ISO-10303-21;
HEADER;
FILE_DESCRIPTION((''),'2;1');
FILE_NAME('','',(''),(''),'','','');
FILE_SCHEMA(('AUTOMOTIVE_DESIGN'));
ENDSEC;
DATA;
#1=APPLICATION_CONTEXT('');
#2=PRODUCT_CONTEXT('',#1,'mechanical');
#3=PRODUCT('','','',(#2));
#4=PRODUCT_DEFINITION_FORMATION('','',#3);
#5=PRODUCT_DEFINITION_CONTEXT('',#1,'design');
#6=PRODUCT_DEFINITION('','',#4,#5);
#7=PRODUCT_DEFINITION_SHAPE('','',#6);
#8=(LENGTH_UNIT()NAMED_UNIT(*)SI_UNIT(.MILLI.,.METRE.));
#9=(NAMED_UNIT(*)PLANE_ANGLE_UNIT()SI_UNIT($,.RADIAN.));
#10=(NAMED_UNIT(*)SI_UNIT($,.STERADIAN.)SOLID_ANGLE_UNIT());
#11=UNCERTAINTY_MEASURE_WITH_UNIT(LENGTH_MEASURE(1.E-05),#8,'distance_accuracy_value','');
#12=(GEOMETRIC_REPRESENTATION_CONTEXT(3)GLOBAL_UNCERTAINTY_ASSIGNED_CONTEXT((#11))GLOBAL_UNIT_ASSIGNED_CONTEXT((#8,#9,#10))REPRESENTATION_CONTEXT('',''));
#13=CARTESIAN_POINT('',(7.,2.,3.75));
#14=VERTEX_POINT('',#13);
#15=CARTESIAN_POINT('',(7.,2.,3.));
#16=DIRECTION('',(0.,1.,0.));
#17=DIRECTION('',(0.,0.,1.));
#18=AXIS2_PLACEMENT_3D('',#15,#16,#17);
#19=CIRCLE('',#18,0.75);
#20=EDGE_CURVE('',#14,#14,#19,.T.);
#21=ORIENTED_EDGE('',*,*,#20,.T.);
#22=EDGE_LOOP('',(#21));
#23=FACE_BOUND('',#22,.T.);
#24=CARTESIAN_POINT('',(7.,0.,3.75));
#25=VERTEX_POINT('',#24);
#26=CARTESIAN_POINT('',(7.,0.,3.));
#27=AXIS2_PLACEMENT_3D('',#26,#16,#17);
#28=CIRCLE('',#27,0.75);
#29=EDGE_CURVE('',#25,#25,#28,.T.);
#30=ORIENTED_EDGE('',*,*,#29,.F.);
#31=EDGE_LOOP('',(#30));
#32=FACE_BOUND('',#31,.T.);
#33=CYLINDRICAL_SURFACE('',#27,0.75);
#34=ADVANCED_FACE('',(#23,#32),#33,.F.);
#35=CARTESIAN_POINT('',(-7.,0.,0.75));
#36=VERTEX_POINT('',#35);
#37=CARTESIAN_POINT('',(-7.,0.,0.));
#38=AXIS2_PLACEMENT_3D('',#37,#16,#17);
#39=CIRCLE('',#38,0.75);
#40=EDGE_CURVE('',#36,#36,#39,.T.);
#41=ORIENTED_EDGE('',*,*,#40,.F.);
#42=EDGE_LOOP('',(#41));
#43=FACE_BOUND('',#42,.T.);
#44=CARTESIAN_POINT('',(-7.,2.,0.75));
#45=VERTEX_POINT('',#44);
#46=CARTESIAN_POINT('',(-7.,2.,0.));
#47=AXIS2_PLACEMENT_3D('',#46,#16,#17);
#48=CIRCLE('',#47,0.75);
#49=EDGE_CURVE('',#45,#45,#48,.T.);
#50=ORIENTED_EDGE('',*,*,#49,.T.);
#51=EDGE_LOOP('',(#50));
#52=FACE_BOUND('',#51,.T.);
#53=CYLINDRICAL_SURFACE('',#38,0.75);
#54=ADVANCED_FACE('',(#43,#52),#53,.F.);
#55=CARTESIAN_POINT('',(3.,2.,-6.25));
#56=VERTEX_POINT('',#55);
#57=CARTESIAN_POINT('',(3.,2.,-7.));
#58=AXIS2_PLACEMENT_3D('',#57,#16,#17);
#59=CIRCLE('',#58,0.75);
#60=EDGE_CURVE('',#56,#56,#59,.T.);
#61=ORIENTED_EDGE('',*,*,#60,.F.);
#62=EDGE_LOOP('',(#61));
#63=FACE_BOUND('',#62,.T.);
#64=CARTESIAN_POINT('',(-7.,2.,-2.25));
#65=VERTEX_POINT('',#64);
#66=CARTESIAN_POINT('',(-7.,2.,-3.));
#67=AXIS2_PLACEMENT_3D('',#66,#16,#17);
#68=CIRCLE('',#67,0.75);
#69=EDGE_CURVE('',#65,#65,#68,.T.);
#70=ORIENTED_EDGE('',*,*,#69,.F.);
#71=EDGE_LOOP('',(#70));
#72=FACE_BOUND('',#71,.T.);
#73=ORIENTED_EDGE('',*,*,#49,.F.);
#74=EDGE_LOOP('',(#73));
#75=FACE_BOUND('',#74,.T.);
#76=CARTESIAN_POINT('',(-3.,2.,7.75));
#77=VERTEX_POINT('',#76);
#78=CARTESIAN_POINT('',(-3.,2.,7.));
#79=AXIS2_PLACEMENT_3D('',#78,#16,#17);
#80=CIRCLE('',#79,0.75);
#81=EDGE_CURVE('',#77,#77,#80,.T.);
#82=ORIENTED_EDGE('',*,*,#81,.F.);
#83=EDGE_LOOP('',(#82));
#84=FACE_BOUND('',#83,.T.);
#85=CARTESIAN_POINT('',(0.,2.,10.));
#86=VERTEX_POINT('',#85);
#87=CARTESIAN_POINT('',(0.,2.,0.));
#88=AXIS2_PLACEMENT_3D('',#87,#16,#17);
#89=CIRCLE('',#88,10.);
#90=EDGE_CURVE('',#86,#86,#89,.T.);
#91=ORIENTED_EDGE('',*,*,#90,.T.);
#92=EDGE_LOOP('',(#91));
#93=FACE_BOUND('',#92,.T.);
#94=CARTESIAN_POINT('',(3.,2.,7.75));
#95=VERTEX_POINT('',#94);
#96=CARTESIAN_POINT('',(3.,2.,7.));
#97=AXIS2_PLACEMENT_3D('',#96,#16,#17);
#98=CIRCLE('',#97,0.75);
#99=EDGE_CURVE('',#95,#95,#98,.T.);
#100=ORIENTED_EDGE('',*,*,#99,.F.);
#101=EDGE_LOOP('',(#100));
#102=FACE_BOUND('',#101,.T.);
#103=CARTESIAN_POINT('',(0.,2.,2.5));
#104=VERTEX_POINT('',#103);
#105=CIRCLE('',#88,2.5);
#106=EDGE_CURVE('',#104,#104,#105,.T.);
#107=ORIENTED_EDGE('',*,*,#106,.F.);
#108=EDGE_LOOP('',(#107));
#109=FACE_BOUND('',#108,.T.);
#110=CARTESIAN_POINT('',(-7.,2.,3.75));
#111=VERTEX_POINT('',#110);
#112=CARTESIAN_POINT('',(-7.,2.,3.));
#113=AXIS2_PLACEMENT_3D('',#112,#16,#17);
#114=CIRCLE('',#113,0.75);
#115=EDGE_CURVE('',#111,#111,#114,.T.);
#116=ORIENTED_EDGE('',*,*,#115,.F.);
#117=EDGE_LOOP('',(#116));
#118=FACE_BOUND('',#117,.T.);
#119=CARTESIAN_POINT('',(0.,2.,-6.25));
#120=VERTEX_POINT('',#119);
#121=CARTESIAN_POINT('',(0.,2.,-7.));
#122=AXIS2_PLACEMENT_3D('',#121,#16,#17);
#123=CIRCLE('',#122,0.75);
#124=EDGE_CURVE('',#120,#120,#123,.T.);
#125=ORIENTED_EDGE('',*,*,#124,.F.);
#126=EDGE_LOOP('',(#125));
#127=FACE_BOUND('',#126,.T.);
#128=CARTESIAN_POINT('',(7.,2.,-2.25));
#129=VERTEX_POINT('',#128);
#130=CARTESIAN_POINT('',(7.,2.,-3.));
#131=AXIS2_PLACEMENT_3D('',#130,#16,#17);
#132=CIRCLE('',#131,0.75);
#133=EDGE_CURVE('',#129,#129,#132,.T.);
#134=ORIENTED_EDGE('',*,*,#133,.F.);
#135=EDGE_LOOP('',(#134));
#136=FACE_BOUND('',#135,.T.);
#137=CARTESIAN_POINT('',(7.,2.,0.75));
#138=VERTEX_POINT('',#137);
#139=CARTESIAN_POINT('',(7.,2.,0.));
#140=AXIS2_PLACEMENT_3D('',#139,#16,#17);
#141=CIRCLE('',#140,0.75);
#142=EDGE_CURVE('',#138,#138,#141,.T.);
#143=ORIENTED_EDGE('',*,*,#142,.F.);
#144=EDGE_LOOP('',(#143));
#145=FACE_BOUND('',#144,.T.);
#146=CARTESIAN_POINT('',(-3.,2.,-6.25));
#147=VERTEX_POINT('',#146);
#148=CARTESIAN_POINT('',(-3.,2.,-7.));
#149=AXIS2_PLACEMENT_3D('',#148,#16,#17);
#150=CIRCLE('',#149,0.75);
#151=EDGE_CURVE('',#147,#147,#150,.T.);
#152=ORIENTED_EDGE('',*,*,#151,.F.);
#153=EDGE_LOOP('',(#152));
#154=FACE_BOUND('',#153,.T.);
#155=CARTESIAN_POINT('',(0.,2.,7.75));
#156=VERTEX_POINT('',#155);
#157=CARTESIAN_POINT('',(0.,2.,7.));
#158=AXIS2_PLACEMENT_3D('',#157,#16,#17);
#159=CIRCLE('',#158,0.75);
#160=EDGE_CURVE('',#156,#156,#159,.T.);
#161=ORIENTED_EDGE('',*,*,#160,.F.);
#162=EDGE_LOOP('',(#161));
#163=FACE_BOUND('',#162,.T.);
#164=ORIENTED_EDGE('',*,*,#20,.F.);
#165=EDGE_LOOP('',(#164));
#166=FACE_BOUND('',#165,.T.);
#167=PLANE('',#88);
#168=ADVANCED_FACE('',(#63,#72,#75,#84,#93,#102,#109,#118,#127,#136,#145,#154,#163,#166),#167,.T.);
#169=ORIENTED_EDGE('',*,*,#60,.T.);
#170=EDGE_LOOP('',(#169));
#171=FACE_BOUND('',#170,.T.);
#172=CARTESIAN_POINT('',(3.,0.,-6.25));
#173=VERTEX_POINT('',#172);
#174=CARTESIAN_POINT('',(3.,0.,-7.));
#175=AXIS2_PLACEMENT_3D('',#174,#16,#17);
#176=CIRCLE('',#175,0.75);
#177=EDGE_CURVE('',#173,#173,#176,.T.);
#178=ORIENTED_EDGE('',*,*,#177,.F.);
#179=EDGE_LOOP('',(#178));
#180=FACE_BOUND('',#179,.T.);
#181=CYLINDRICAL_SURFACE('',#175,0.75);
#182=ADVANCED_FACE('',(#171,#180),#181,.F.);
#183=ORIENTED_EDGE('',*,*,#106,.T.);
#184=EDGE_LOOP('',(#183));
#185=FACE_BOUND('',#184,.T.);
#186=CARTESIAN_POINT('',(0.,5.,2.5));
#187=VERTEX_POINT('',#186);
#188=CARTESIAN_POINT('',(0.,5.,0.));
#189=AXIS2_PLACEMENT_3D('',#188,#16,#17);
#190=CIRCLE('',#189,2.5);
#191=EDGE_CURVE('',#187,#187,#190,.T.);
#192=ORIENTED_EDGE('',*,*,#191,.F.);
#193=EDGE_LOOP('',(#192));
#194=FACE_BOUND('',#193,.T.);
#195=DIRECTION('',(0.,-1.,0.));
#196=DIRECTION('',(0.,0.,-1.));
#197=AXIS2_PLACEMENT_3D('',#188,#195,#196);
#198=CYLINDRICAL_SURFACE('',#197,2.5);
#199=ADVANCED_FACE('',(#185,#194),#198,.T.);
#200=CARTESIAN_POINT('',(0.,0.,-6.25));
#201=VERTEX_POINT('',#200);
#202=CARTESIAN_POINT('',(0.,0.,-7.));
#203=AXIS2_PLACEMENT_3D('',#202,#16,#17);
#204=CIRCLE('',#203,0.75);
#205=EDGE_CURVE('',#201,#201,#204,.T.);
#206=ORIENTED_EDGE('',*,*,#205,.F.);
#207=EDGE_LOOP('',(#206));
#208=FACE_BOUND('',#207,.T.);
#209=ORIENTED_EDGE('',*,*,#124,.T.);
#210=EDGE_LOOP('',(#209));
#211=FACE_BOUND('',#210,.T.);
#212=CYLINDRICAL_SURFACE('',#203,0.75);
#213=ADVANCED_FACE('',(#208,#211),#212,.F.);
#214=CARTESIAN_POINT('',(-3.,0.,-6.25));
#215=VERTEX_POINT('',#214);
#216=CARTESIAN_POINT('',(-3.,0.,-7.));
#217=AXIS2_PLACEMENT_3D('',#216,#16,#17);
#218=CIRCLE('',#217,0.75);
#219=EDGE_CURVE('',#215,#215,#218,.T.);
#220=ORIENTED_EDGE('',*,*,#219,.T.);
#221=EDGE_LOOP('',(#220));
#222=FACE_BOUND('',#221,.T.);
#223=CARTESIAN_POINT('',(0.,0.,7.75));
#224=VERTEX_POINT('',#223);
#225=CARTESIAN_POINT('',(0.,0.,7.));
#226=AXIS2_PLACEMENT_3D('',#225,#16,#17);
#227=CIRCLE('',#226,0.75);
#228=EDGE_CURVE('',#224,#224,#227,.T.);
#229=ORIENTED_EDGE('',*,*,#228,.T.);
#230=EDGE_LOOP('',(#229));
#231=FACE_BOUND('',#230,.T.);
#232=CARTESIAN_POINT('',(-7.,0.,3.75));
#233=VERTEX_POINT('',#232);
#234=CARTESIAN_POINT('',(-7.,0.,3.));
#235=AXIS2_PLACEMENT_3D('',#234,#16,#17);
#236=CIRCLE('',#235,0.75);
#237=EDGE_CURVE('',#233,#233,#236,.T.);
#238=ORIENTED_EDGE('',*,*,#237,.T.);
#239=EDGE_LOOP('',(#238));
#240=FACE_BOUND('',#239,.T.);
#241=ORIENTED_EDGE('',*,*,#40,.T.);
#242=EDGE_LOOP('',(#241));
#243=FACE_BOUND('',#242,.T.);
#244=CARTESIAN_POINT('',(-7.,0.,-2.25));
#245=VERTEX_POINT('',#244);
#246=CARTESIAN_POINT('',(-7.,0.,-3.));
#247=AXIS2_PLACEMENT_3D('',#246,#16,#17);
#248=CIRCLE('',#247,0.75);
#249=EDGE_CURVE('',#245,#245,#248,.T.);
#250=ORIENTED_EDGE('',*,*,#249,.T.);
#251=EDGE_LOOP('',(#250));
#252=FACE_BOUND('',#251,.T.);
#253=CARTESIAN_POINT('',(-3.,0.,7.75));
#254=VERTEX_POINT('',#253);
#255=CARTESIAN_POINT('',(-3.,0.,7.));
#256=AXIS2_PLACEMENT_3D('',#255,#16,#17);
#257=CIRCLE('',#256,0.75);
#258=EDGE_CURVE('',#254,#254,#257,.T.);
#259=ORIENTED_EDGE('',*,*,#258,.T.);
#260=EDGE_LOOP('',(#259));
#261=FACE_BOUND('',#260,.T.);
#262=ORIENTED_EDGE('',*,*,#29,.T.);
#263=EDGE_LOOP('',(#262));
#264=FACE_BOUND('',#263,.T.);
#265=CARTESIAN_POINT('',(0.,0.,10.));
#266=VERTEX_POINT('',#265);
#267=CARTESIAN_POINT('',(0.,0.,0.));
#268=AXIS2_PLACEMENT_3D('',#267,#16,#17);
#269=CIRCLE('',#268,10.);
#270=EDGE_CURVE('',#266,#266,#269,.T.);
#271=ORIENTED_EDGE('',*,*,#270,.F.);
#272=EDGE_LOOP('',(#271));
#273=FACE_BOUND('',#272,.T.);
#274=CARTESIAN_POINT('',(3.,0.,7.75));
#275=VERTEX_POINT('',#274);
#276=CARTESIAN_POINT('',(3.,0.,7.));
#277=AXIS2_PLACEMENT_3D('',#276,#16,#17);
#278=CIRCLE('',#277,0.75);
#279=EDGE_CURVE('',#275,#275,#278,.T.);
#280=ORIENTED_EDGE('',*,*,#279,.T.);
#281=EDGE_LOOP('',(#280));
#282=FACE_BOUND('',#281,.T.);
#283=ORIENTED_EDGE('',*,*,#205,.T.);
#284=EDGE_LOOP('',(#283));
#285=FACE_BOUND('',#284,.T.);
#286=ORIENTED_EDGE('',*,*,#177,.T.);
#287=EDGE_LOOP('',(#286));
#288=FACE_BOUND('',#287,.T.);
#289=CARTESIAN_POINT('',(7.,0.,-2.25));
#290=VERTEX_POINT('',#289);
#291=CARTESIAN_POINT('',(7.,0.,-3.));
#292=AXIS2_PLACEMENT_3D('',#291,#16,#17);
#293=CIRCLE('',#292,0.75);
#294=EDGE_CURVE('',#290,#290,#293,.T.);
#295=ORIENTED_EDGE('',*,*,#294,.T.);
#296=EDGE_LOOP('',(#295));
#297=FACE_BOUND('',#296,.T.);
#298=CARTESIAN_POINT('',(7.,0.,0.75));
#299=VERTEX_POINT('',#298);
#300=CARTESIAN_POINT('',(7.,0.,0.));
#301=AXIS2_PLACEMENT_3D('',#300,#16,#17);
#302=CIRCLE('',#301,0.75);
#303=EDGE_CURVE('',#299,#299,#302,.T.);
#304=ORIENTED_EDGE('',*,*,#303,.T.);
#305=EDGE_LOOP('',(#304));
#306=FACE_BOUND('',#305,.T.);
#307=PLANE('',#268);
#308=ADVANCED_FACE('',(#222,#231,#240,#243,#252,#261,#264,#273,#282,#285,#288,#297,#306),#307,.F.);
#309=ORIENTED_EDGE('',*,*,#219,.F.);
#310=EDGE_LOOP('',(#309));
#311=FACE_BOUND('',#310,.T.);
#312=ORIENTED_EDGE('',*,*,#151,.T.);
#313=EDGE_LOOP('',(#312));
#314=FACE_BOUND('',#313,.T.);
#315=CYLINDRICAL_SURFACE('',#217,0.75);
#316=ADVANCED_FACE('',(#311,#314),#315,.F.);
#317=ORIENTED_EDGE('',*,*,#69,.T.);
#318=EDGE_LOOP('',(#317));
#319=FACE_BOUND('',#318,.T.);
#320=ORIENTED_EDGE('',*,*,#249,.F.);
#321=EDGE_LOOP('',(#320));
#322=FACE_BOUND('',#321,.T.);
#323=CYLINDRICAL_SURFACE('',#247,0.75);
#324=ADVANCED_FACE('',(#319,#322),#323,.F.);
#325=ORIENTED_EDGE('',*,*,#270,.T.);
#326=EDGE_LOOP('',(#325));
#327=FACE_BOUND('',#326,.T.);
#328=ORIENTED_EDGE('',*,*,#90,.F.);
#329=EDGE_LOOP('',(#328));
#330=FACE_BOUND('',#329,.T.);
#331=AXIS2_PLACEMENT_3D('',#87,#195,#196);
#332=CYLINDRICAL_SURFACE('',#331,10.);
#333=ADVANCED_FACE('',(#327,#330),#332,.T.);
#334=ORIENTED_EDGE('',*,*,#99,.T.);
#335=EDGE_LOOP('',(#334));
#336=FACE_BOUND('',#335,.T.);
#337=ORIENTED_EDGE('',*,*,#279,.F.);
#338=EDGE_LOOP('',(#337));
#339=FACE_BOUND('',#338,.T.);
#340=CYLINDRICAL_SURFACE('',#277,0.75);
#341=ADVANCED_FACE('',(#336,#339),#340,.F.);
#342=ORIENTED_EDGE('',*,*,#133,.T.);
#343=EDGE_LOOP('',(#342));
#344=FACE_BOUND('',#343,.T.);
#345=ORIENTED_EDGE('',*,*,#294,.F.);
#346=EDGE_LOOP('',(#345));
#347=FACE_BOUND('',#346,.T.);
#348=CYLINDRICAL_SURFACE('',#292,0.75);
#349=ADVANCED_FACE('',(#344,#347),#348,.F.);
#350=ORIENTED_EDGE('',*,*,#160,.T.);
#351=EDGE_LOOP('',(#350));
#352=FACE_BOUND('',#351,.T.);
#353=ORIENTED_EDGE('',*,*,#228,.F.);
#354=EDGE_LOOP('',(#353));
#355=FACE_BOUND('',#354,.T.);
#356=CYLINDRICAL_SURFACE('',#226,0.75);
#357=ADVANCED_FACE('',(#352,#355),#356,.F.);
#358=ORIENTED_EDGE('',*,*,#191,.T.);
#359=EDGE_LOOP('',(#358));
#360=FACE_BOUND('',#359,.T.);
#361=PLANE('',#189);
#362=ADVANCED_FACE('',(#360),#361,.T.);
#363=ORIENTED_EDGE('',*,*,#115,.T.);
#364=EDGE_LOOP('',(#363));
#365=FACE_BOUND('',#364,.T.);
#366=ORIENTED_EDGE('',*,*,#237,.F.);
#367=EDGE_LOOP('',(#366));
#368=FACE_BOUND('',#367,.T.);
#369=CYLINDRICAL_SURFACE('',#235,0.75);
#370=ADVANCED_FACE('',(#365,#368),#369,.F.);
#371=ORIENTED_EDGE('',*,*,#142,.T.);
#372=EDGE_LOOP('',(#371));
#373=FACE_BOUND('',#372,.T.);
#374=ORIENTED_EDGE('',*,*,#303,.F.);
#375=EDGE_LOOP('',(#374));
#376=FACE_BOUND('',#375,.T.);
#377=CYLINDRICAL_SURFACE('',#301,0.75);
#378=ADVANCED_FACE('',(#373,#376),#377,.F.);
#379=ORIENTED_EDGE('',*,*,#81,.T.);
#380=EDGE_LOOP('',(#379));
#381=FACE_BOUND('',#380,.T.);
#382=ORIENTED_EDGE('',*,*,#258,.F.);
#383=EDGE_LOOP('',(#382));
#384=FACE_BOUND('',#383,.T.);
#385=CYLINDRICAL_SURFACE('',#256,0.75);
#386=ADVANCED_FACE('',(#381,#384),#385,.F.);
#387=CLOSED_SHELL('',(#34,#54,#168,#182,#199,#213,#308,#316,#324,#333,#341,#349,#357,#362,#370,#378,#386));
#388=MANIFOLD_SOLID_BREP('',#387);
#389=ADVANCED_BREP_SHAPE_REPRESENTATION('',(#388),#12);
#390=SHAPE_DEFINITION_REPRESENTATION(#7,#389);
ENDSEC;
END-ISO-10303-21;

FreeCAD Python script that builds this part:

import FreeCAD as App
import Part
import Sketcher
Q = App.Units.Quantity

doc = App.newDocument("Part")
body = doc.addObject("PartDesign::Body", "Body")

sketch1 = body.newObject("Sketcher::SketchObject", "Sketch")
sketch1.AttachmentSupport = (doc.getObject("XZ_Plane"), [""])
sketch1.MapMode = "FlatFace"
sketch1.addGeometry(Part.Circle(App.Vector(0, 0, 0), App.Vector(0, 0, 1), 10), False)
sketch1.addConstraint([
    Sketcher.Constraint("Coincident", 0, 3, -1, 1),
    Sketcher.Constraint("Diameter", 0, Q("20 mm")),
])
pad1 = body.newObject("PartDesign::Pad", "Pad")
pad1.Profile = sketch1
pad1.Length = 2
pad1.Reversed = True

sketch2 = body.newObject("Sketcher::SketchObject", "Sketch001")
sketch2.AttachmentSupport = (doc.getObject("XZ_Plane"), [""])
sketch2.MapMode = "FlatFace"
sketch2.AttachmentOffset = App.Placement(App.Vector(0, 0, -2), App.Rotation())
sketch2.addGeometry(Part.Circle(App.Vector(0, 0, 0), App.Vector(0, 0, 1), 2.5), False)
sketch2.addConstraint([
    Sketcher.Constraint("Coincident", 0, 3, -1, 1),
    Sketcher.Constraint("Diameter", 0, Q("5 mm")),
])
pad2 = body.newObject("PartDesign::Pad", "Pad001")
pad2.Profile = sketch2
pad2.Length = 3
pad2.Reversed = True

sketch3 = body.newObject("Sketcher::SketchObject", "Sketch002")
sketch3.AttachmentSupport = (doc.getObject("XZ_Plane"), [""])
sketch3.MapMode = "FlatFace"
sketch3.AttachmentOffset = App.Placement(App.Vector(0, 0, -2), App.Rotation())
sketch3.addGeometry([
    Part.Circle(App.Vector(0, -7, 0), App.Vector(0, 0, 1), 0.8),
    Part.Circle(App.Vector(-3, -7, 0), App.Vector(0, 0, 1), 0.8),
    Part.Circle(App.Vector(3, -7, 0), App.Vector(0, 0, 1), 0.8),
    Part.Circle(App.Vector(7, -3, 0), App.Vector(0, 0, 1), 0.8),
    Part.Circle(App.Vector(7, 0, 0), App.Vector(0, 0, 1), 0.8),
    Part.Circle(App.Vector(7, 3, 0), App.Vector(0, 0, 1), 0.8),
    Part.Circle(App.Vector(3, 7, 0), App.Vector(0, 0, 1), 0.8),
    Part.Circle(App.Vector(0, 7, 0), App.Vector(0, 0, 1), 0.8),
    Part.Circle(App.Vector(-3, 7, 0), App.Vector(0, 0, 1), 0.8),
    Part.Circle(App.Vector(-7, 3, 0), App.Vector(0, 0, 1), 0.8),
    Part.Circle(App.Vector(-7, 0, 0), App.Vector(0, 0, 1), 0.8),
    Part.Circle(App.Vector(-7, -3, 0), App.Vector(0, 0, 1), 0.8),
], False)
sketch3.addConstraint([
    Sketcher.Constraint("Equal", 0, 1),
    Sketcher.Constraint("Equal", 1, 2),
    Sketcher.Constraint("Equal", 2, 3),
    Sketcher.Constraint("Equal", 3, 4),
    Sketcher.Constraint("Equal", 4, 5),
    Sketcher.Constraint("Equal", 5, 6),
    Sketcher.Constraint("Equal", 6, 7),
    Sketcher.Constraint("Equal", 7, 8),
    Sketcher.Constraint("Equal", 8, 9),
    Sketcher.Constraint("Equal", 9, 10),
    Sketcher.Constraint("Equal", 10, 11),
    Sketcher.Constraint("Symmetric", 1, 3, 6, 3, -1, 1),
    Sketcher.Constraint("Symmetric", 0, 3, 7, 3, -1, 1),
    Sketcher.Constraint("Symmetric", 2, 3, 8, 3, -1, 1),
    Sketcher.Constraint("Symmetric", 3, 3, 9, 3, -1, 1),
    Sketcher.Constraint("Symmetric", 4, 3, 10, 3, -1, 1),
    Sketcher.Constraint("Symmetric", 5, 3, 11, 3, -1, 1),
    Sketcher.Constraint("Symmetric", 1, 3, 2, 3, -2),
    Sketcher.Constraint("Symmetric", 5, 3, 9, 3, -2),
    Sketcher.Constraint("PointOnObject", 0, 3, -2),
    Sketcher.Constraint("PointOnObject", 4, 3, -1),
    Sketcher.Constraint("Horizontal", 0, 3, 1, 3),
    Sketcher.Constraint("Vertical", 3, 3, 4, 3),
    Sketcher.Constraint("Diameter", 0, Q("1.5 mm")),
    Sketcher.Constraint("DistanceY", 0, 3, -1, 1, Q("7 mm")),
    Sketcher.Constraint("DistanceX", 1, 3, -1, 1, Q("3 mm")),
    Sketcher.Constraint("DistanceX", -1, 1, 3, 3, Q("7 mm")),
    Sketcher.Constraint("DistanceY", 3, 3, -1, 1, Q("3 mm")),
])
pocket1 = body.newObject("PartDesign::Pocket", "Pocket")
pocket1.Profile = sketch3
pocket1.Type = "ThroughAll"
pocket1.Reversed = True

doc.recompute()
